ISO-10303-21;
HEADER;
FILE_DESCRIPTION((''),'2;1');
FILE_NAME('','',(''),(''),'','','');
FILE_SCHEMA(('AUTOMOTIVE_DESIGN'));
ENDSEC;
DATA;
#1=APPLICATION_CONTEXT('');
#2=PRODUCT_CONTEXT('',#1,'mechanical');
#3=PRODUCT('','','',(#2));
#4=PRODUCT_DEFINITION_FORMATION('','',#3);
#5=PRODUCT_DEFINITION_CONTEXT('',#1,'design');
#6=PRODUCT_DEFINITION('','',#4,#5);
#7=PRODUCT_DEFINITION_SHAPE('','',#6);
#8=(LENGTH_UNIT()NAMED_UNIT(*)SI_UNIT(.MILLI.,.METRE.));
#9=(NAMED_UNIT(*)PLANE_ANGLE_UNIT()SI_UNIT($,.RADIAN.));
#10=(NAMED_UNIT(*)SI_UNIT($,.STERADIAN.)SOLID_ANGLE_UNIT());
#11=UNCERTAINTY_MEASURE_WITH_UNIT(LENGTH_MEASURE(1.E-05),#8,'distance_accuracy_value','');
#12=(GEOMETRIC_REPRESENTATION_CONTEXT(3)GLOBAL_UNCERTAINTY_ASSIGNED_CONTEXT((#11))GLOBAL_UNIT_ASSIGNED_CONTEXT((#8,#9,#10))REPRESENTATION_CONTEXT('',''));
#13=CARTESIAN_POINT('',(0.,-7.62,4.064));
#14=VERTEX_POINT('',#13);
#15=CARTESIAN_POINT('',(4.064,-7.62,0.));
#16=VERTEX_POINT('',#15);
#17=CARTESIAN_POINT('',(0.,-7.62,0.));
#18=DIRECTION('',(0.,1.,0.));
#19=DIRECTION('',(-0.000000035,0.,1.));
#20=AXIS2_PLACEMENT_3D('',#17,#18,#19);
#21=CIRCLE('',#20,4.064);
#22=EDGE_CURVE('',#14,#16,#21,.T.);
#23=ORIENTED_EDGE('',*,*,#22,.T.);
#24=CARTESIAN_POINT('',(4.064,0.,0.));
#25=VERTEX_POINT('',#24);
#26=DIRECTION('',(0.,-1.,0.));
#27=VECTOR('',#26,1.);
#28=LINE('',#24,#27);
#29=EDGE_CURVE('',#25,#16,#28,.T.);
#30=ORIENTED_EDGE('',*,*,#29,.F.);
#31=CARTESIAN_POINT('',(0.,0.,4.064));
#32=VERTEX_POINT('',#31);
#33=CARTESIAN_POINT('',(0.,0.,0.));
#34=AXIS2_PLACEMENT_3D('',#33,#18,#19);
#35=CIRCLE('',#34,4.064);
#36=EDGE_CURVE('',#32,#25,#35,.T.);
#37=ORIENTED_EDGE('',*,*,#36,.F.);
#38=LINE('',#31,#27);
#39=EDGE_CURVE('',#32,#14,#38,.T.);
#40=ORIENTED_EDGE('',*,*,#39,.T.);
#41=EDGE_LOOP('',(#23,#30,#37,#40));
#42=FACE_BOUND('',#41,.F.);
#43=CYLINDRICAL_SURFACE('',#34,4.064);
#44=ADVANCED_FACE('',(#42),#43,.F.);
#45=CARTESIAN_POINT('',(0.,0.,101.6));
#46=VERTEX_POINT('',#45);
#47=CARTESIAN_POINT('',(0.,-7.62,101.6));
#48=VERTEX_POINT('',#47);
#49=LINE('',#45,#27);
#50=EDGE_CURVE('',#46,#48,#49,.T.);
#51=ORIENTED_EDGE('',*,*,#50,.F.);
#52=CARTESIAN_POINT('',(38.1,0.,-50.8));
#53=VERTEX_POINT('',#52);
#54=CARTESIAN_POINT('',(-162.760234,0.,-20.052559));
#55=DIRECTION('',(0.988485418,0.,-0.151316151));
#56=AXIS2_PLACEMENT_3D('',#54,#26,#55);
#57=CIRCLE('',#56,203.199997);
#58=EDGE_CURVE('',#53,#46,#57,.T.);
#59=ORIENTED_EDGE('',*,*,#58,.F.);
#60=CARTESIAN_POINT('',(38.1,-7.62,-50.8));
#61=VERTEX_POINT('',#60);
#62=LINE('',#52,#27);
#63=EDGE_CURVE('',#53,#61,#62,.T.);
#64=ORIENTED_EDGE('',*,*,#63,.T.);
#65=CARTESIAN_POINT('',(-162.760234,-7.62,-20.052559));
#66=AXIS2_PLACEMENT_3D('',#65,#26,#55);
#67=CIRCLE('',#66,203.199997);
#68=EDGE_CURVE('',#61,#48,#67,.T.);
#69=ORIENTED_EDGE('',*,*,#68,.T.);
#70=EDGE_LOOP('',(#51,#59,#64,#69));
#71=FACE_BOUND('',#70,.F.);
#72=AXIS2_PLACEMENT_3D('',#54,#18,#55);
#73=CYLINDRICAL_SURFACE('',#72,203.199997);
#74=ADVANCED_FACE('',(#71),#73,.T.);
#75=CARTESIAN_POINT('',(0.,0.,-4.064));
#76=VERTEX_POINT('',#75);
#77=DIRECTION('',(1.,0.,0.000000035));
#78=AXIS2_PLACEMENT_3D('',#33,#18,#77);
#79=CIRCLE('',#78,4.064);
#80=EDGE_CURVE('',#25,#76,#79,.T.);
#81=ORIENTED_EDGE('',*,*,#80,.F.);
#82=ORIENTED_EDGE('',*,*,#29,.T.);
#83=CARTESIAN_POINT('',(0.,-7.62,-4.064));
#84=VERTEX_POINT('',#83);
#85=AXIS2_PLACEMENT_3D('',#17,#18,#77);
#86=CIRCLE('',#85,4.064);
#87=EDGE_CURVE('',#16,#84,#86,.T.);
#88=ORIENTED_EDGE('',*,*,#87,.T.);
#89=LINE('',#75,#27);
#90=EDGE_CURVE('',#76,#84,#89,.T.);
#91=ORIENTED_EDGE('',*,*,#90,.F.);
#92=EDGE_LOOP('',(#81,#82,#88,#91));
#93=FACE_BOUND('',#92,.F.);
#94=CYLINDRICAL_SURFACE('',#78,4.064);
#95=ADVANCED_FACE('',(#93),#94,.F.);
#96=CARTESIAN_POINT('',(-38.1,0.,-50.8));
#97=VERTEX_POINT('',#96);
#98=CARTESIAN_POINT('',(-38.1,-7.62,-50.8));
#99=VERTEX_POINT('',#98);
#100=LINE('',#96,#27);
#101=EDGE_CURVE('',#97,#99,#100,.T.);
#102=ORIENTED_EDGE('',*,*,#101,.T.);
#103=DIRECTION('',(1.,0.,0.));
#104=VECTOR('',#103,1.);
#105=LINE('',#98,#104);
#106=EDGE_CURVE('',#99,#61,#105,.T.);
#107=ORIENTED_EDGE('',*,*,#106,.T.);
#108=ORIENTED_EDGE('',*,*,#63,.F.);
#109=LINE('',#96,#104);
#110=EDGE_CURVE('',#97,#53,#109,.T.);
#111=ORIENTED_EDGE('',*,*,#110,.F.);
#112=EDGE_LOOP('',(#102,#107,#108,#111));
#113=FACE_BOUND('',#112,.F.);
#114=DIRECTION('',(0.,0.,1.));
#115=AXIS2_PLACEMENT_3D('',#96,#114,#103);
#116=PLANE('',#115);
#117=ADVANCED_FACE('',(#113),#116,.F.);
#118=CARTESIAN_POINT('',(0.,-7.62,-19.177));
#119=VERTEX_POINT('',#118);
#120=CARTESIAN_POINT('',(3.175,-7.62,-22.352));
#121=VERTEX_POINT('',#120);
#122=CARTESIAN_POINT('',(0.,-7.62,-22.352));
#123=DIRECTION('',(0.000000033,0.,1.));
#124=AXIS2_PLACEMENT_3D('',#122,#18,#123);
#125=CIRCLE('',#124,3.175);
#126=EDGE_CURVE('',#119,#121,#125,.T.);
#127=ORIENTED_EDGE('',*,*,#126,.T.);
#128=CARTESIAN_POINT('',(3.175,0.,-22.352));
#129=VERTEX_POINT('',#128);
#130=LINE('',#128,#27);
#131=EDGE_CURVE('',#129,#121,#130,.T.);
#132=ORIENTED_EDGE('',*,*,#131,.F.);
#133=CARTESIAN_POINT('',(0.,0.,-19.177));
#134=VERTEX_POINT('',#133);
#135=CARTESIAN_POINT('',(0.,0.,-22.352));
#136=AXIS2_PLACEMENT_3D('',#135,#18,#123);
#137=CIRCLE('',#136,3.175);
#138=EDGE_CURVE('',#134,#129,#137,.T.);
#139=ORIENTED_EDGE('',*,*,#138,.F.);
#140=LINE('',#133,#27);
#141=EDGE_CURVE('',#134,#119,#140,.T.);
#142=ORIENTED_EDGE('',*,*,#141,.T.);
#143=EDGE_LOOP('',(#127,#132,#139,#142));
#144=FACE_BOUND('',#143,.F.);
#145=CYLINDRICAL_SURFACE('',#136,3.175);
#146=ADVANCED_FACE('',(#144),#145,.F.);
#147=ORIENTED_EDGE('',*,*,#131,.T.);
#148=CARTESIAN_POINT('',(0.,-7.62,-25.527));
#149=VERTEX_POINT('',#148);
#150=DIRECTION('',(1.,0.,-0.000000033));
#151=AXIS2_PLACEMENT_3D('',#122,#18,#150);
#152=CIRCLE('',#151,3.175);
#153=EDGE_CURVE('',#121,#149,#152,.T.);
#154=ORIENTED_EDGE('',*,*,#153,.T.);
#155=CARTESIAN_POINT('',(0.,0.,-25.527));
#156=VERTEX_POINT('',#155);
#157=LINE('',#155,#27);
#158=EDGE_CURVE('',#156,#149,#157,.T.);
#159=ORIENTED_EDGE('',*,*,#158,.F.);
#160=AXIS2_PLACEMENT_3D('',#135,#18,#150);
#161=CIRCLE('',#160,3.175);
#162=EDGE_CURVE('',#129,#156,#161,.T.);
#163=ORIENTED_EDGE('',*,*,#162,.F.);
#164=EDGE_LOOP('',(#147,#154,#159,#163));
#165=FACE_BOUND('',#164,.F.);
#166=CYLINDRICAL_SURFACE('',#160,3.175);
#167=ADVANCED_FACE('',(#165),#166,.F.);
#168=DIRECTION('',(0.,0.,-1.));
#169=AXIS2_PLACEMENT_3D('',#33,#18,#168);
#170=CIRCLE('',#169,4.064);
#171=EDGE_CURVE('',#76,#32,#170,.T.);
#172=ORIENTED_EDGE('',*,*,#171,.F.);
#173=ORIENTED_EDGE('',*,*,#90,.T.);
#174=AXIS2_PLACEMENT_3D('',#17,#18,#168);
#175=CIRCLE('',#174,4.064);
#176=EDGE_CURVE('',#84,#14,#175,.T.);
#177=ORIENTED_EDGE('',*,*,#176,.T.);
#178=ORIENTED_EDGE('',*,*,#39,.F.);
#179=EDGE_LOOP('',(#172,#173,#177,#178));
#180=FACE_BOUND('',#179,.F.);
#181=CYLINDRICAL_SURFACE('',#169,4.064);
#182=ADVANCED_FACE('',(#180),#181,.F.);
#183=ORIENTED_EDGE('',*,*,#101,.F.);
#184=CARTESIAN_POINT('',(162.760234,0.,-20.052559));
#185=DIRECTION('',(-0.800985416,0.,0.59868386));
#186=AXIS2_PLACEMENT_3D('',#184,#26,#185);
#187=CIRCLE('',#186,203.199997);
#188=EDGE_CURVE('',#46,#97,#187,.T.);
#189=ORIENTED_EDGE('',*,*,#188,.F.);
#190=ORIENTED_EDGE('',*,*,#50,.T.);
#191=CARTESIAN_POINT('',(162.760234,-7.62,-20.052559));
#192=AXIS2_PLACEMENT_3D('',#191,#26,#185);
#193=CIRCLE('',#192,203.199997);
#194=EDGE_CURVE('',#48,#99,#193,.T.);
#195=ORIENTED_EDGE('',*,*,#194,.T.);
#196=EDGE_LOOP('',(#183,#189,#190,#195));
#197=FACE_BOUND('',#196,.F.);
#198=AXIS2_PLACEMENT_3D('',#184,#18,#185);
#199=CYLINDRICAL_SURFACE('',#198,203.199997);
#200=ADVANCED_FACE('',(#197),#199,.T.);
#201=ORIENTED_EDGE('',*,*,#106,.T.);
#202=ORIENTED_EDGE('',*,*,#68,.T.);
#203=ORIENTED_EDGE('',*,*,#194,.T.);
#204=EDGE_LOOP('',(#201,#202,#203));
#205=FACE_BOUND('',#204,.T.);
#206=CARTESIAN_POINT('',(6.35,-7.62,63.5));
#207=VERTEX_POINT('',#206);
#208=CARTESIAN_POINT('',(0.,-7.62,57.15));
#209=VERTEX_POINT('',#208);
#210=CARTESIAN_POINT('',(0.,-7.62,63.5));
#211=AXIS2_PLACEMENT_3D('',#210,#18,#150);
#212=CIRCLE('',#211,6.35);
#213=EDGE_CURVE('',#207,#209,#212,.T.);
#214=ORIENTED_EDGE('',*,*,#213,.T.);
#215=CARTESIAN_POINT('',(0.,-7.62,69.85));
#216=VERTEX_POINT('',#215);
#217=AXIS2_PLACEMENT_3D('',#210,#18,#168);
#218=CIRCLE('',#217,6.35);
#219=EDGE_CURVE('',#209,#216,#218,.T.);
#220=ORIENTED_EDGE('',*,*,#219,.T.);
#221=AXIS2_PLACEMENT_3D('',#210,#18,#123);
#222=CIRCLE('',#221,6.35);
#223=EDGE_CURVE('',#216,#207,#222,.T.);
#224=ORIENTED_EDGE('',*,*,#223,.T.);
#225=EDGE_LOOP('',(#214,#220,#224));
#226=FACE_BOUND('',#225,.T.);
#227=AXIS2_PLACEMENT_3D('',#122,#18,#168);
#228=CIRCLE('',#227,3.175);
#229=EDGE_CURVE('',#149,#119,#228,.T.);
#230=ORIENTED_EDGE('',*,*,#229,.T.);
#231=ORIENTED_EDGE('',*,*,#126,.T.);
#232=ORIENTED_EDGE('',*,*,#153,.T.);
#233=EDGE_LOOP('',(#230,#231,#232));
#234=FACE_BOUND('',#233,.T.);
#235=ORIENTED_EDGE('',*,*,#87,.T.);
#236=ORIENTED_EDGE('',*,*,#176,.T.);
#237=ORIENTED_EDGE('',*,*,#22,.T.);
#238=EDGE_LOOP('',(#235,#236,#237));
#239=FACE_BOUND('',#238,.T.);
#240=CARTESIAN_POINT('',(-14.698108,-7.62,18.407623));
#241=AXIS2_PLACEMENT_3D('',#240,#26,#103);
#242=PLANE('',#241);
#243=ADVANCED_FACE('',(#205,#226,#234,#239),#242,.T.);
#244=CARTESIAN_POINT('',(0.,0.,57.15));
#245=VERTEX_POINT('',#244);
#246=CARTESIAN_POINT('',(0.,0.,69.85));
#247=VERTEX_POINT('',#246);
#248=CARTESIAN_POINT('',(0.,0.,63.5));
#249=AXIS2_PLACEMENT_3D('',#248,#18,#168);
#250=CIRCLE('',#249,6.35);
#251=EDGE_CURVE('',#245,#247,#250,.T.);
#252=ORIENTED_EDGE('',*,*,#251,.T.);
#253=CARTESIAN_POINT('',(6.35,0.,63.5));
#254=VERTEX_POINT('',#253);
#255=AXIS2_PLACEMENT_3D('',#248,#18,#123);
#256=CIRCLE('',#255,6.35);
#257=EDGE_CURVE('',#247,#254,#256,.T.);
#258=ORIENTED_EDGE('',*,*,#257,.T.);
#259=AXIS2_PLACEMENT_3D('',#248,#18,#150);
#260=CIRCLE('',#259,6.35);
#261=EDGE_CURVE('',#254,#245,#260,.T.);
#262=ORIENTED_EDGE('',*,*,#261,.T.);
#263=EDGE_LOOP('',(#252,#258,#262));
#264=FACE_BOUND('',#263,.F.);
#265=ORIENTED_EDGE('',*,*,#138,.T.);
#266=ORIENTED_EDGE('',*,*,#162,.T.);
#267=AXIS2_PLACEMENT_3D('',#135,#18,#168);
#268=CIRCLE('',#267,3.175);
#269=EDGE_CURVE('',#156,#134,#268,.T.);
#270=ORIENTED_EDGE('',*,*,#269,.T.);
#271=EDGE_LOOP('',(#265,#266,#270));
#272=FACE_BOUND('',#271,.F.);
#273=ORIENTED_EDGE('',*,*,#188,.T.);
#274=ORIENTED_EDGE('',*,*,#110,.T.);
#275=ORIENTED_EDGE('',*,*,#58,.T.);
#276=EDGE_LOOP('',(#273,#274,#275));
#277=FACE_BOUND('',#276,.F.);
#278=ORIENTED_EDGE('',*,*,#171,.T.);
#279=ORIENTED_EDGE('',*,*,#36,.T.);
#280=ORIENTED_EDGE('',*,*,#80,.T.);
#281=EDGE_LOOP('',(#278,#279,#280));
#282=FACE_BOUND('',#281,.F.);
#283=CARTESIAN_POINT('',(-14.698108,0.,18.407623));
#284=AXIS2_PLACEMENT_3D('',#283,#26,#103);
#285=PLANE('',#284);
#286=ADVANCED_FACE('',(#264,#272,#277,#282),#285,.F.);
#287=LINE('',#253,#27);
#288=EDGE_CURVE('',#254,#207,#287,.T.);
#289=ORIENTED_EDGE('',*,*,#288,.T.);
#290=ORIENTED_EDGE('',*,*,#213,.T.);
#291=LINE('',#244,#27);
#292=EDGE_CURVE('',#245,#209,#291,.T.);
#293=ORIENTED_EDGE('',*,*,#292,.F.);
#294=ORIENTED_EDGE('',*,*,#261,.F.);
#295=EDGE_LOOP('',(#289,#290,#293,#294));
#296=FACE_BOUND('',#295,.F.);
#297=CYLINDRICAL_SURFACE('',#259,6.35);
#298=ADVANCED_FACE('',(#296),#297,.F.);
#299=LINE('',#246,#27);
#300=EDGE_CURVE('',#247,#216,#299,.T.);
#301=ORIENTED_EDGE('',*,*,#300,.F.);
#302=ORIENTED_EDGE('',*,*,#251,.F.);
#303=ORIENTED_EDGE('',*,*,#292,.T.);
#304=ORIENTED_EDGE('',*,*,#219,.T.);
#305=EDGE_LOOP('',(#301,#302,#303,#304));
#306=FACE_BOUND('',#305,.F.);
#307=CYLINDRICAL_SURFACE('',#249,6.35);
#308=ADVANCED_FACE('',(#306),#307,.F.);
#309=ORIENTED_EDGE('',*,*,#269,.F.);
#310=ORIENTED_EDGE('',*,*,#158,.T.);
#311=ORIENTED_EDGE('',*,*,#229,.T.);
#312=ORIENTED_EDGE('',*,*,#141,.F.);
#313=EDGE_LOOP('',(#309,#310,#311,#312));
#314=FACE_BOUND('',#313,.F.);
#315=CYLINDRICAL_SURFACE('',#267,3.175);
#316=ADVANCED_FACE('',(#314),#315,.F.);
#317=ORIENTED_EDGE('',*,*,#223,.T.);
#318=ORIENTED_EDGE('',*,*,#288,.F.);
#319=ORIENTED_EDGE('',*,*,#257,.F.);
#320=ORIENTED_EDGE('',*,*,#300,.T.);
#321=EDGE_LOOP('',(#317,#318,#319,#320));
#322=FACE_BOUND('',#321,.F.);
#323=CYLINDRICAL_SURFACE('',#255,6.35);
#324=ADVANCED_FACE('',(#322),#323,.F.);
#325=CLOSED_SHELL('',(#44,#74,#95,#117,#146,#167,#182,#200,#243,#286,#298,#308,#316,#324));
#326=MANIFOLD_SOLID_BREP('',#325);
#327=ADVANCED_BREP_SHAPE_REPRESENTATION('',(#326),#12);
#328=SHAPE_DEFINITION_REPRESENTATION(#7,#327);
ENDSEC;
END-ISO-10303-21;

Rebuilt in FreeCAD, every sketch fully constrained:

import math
import FreeCAD as App
import Part
import Sketcher
from FreeCAD import Vector
Q = App.Units.Quantity

doc = App.newDocument("Part")
params = doc.addObject("Spreadsheet::Sheet", "Params")
for row, (alias, value) in enumerate([
    ("sketch1_radius", "7.9999999 in"),
    ("sketch1_width", "3 in"),
    ("sketch1_radius2", "0.16 in"),
    ("sketch1_radius3", "0.25 in"),
    ("sketch1_radius4", "0.125 in"),
    ("pad1_length", "0.3 in"),
], start=1):
    params.set(f"A{row}", alias)
    params.set(f"B{row}", "=" + value)
    params.setAlias(f"B{row}", alias)

body = doc.addObject("PartDesign::Body", "Body")

sketch1 = body.newObject("Sketcher::SketchObject", "Sketch")
sketch1.AttachmentSupport = (doc.getObject("XZ_Plane"), [""])
sketch1.MapMode = "FlatFace"
sketch1.addGeometry(Part.ArcOfCircle(Part.Circle(Vector(162.8, -20.1, 0), Vector(0, 0, 1), 203.2), math.radians(143), math.radians(189)), False)
sketch1.addGeometry(Part.LineSegment(Vector(-38.1, -50.8, 0), Vector(38.1, -50.8, 0)), False)
sketch1.addGeometry(Part.ArcOfCircle(Part.Circle(Vector(-162.8, -20.1, 0), Vector(0, 0, 1), 203.2), math.radians(-9), math.radians(37)), False)
sketch1.addGeometry(Part.ArcOfCircle(Part.Circle(Vector(0, -22.4, 0), Vector(0, 0, 1), 3.2), math.radians(90), math.radians(270)), False)
sketch1.addGeometry(Part.ArcOfCircle(Part.Circle(Vector(0, -22.4, 0), Vector(0, 0, 1), 3.2), math.radians(0), math.radians(90)), False)
sketch1.addGeometry(Part.ArcOfCircle(Part.Circle(Vector(0, -22.4, 0), Vector(0, 0, 1), 3.2), math.radians(-90), math.radians(0)), False)
sketch1.addGeometry(Part.ArcOfCircle(Part.Circle(Vector(0, 0, 0), Vector(0, 0, 1), 4.1), math.radians(90), math.radians(270)), False)
sketch1.addGeometry(Part.ArcOfCircle(Part.Circle(Vector(0, 0, 0), Vector(0, 0, 1), 4.1), math.radians(0), math.radians(90)), False)
sketch1.addGeometry(Part.ArcOfCircle(Part.Circle(Vector(0, 0, 0), Vector(0, 0, 1), 4.1), math.radians(-90), math.radians(0)), False)
sketch1.addGeometry(Part.ArcOfCircle(Part.Circle(Vector(0, 63.5, 0), Vector(0, 0, 1), 6.3), math.radians(90), math.radians(270)), False)
sketch1.addGeometry(Part.ArcOfCircle(Part.Circle(Vector(0, 63.5, 0), Vector(0, 0, 1), 6.4), math.radians(0), math.radians(90)), False)
sketch1.addGeometry(Part.ArcOfCircle(Part.Circle(Vector(0, 63.5, 0), Vector(0, 0, 1), 6.4), math.radians(-90), math.radians(0)), False)
sketch1.addConstraint(Sketcher.Constraint("Coincident", 0, 2, 1, 1))
sketch1.addConstraint(Sketcher.Constraint("Coincident", 1, 2, 2, 1))
sketch1.addConstraint(Sketcher.Constraint("Coincident", 2, 2, 0, 1))
sketch1.addConstraint(Sketcher.Constraint("Tangent", 3, 1, 4, 2))
sketch1.addConstraint(Sketcher.Constraint("Tangent", 4, 1, 5, 2))
sketch1.addConstraint(Sketcher.Constraint("Tangent", 5, 1, 3, 2))
sketch1.addConstraint(Sketcher.Constraint("Tangent", 6, 1, 7, 2))
sketch1.addConstraint(Sketcher.Constraint("Tangent", 7, 1, 8, 2))
sketch1.addConstraint(Sketcher.Constraint("Tangent", 8, 1, 6, 2))
sketch1.addConstraint(Sketcher.Constraint("Tangent", 9, 1, 10, 2))
sketch1.addConstraint(Sketcher.Constraint("Tangent", 10, 1, 11, 2))
sketch1.addConstraint(Sketcher.Constraint("Tangent", 11, 1, 9, 2))
sketch1.addConstraint(Sketcher.Constraint("Horizontal", 1))
sketch1.addConstraint(Sketcher.Constraint("Coincident", 6, 3, -1, 1))
sketch1.addConstraint(Sketcher.Constraint("Equal", 0, 2))
sketch1.addConstraint(Sketcher.Constraint("Symmetric", 0, 3, 2, 3, -2))
sketch1.addConstraint(Sketcher.Constraint("PointOnObject", 3, 3, -2))
sketch1.addConstraint(Sketcher.Constraint("PointOnObject", 9, 3, -2))
sketch1.addConstraint(Sketcher.Constraint("PointOnObject", 3, 1, -2))
sketch1.addConstraint(Sketcher.Constraint("PointOnObject", 5, 1, -2))
sketch1.addConstraint(Sketcher.Constraint("PointOnObject", 6, 1, -2))
sketch1.addConstraint(Sketcher.Constraint("PointOnObject", 7, 1, -1))
sketch1.addConstraint(Sketcher.Constraint("PointOnObject", 8, 1, -2))
sketch1.addConstraint(Sketcher.Constraint("PointOnObject", 9, 1, -2))
sketch1.addConstraint(Sketcher.Constraint("PointOnObject", 11, 1, -2))
sketch1.addConstraint(Sketcher.Constraint("Horizontal", 5, 3, 4, 1))
sketch1.addConstraint(Sketcher.Constraint("Horizontal", 11, 3, 10, 1))
sketch1.addConstraint(Sketcher.Constraint("Radius", 0, Q("7.9999999 in")))
sketch1.addConstraint(Sketcher.Constraint("DistanceX", 1, 1, 1, 2, Q("3 in")))
sketch1.addConstraint(Sketcher.Constraint("Radius", 6, Q("0.16 in")))
sketch1.addConstraint(Sketcher.Constraint("Radius", 9, Q("0.25 in")))
sketch1.addConstraint(Sketcher.Constraint("DistanceY", 0, 2, -1, 1, Q("2 in")))
sketch1.addConstraint(Sketcher.Constraint("DistanceY", -1, 1, 2, 2, Q("4 in")))
sketch1.addConstraint(Sketcher.Constraint("Radius", 3, Q("0.125 in")))
sketch1.addConstraint(Sketcher.Constraint("DistanceY", -1, 1, 9, 3, Q("2.5 in")))
sketch1.addConstraint(Sketcher.Constraint("DistanceY", 3, 3, -1, 1, Q("0.88 in")))
sketch1.setExpression("Constraints[27]", "Params.sketch1_radius")
sketch1.setExpression("Constraints[28]", "Params.sketch1_width")
sketch1.setExpression("Constraints[29]", "Params.sketch1_radius2")
sketch1.setExpression("Constraints[30]", "Params.sketch1_radius3")
sketch1.setExpression("Constraints[33]", "Params.sketch1_radius4")
pad1 = body.newObject("PartDesign::Pad", "Pad")
pad1.Profile = sketch1
pad1.setExpression("Length", "Params.pad1_length")

doc.recompute()
